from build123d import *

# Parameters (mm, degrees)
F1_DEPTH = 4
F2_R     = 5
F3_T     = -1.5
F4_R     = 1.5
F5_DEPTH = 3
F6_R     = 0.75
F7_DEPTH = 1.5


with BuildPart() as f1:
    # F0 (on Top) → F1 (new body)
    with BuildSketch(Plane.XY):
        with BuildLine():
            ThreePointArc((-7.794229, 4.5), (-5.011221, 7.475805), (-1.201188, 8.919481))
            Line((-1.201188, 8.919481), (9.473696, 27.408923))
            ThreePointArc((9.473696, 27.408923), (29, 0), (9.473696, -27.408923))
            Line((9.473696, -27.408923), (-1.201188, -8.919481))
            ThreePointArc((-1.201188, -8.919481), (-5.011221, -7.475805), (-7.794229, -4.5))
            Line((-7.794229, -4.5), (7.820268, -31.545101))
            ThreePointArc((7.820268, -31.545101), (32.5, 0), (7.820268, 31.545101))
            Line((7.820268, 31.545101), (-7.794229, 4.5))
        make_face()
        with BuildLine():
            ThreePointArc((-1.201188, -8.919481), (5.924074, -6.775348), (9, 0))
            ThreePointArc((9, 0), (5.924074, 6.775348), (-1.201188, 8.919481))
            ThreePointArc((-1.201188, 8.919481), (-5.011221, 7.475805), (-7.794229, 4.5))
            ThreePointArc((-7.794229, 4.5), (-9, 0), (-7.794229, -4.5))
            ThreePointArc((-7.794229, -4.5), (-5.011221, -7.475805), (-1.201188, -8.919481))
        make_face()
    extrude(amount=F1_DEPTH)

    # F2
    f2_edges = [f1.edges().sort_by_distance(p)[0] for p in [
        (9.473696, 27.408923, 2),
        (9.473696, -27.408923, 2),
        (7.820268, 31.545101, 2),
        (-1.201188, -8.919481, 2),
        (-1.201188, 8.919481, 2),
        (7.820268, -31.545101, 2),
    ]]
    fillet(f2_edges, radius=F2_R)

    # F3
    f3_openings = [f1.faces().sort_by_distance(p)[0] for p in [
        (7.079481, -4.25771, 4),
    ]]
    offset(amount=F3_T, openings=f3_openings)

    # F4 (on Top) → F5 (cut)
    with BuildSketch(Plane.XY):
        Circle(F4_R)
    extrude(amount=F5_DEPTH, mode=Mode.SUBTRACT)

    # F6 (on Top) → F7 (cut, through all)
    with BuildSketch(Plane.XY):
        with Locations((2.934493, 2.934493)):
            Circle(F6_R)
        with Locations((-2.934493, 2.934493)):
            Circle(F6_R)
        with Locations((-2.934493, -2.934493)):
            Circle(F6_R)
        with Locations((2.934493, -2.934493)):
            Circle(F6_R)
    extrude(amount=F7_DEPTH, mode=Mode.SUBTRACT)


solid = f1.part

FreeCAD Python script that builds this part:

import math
import FreeCAD as App
import Part
import Sketcher
from FreeCAD import Vector
Q = App.Units.Quantity


def edges_at(feature, points):
    """Names of the edges that pass closest to the given points."""
    edges = feature.Shape.Edges
    near = lambda p: min(range(len(edges)), key=lambda i: edges[i].distToShape(Part.Vertex(*p))[0])
    return sorted({f"Edge{near(p) + 1}" for p in points})


def faces_at(feature, points):
    """Names of the faces that lie closest to the given points."""
    faces = feature.Shape.Faces
    near = lambda p: min(range(len(faces)), key=lambda i: faces[i].distToShape(Part.Vertex(*p))[0])
    return sorted({f"Face{near(p) + 1}" for p in points})

doc = App.newDocument("Part")
params = doc.addObject("Spreadsheet::Sheet", "Params")
for row, (alias, value) in enumerate([
    ("sketch1_radius", "28.999999 mm"),
    ("sketch1_radius2", "9 mm"),
    ("sketch1_radius3", "32.5 mm"),
    ("pad1_length", "4 mm"),
    ("fillet_radius", "5 mm"),
    ("thickness_wall", "1.5 mm"),
    ("sketch2_diameter", "3 mm"),
    ("pocket1_length", "3 mm"),
    ("sketch3_diameter", "1.5 mm"),
], start=1):
    params.set(f"A{row}", alias)
    params.set(f"B{row}", "=" + value)
    params.setAlias(f"B{row}", alias)

body = doc.addObject("PartDesign::Body", "Body")

# Sketch on XY plane
sketch1 = doc.addObject("Sketcher::SketchObject", "Sketch")
body.addObject(sketch1)
sketch1.AttachmentSupport = (doc.XY_Plane, [""])
sketch1.MapMode = "FlatFace"
sketch1.addGeometry([
    Part.LineSegment(Vector(-8, -4, 0), Vector(8, -32, 0)),  # 0
    Part.ArcOfCircle(Part.Circle(Vector(0, 0, 0), Vector(0, 0, 1), 32), math.radians(-76), math.radians(76)),  # 1
    Part.LineSegment(Vector(8, 32, 0), Vector(-8, 4, 0)),  # 2
    Part.ArcOfCircle(Part.Circle(Vector(0, 0, 0), Vector(0, 0, 1), 9), math.radians(150), math.radians(210)),  # 3
    Part.LineSegment(Vector(-1, 9, 0), Vector(9, 27, 0)),  # 4
    Part.ArcOfCircle(Part.Circle(Vector(0, 0, 0), Vector(0, 0, 1), 29), math.radians(-71), math.radians(71)),  # 5
    Part.LineSegment(Vector(9, -27, 0), Vector(-1, -9, 0)),  # 6
    Part.ArcOfCircle(Part.Circle(Vector(0, 0, 0), Vector(0, 0, 1), 9), math.radians(-98), math.radians(0)),  # 7
    Part.ArcOfCircle(Part.Circle(Vector(0, 0, 0), Vector(0, 0, 1), 9), math.radians(0), math.radians(98)),  # 8
], False)
sketch1.addConstraint([
    Sketcher.Constraint("Coincident", 0, 2, 1, 1),
    Sketcher.Constraint("Coincident", 1, 2, 2, 1),
    Sketcher.Constraint("Tangent", 2, 2, 3, 1),
    Sketcher.Constraint("Tangent", 3, 2, 0, 1),
    Sketcher.Constraint("Coincident", 4, 2, 5, 2),
    Sketcher.Constraint("Coincident", 5, 1, 6, 1),
    Sketcher.Constraint("Coincident", 6, 2, 7, 1),
    Sketcher.Constraint("Tangent", 7, 2, 8, 1),
    Sketcher.Constraint("Coincident", 8, 2, 4, 1),
    Sketcher.Constraint("Coincident", 1, 3, -1, 1),
    Sketcher.Constraint("Coincident", 3, 3, -1, 1),
    Sketcher.Constraint("Coincident", 5, 3, -1, 1),
    Sketcher.Constraint("Coincident", 7, 3, -1, 1),
    Sketcher.Constraint("Equal", 7, 8),
    Sketcher.Constraint("PointOnObject", 7, 2, -1),
    Sketcher.Constraint("Parallel", 2, 4),
    Sketcher.Constraint("Parallel", 0, 6),
    Sketcher.Constraint("Vertical", 0, 2, 1, 2),
    Sketcher.Constraint("Vertical", 4, 2, 5, 1),
    Sketcher.Constraint("Radius", 5, Q("28.999999 mm")),
    Sketcher.Constraint("Radius", 7, Q("9 mm")),
    Sketcher.Constraint("Radius", 1, Q("32.5 mm")),
    Sketcher.Constraint("Angle", 0, Q("-59.999999 deg")),
    Sketcher.Constraint("DistanceY", 3, 2, 2, 2, Q("9 mm")),
    Sketcher.Constraint("Distance", 4, Q("21.349768 mm")),
])
sketch1.setExpression("Constraints[19]", "Params.sketch1_radius")
sketch1.setExpression("Constraints[20]", "Params.sketch1_radius2")
sketch1.setExpression("Constraints[21]", "Params.sketch1_radius3")
pad1 = doc.addObject("PartDesign::Pad", "Pad")
body.addObject(pad1)
pad1.Profile = sketch1
pad1.setExpression("Length", "Params.pad1_length")
doc.recompute()

fillet = doc.addObject("PartDesign::Fillet", "Fillet")
body.addObject(fillet)
fillet.Base = (pad1, edges_at(pad1, [
    (9.474, 27.409, 2),
    (9.474, -27.409, 2),
    (7.82, 31.545, 2),
    (-1.201, -8.919, 2),
    (-1.201, 8.919, 2),
    (7.82, -31.545, 2),
]))
fillet.setExpression("Radius", "Params.fillet_radius")
doc.recompute()

thickness = doc.addObject("PartDesign::Thickness", "Thickness")
body.addObject(thickness)
thickness.Base = (fillet, faces_at(fillet, [(-4.85, 0, 4)]))
thickness.setExpression("Value", "Params.thickness_wall")
thickness.Reversed = True
thickness.Join = "Arc"

# Sketch on XY plane
sketch2 = doc.addObject("Sketcher::SketchObject", "Sketch001")
body.addObject(sketch2)
sketch2.AttachmentSupport = (doc.XY_Plane, [""])
sketch2.MapMode = "FlatFace"
sketch2.addGeometry(Part.Circle(Vector(0, 0, 0), Vector(0, 0, 1), 1.5), False)
sketch2.addConstraint([
    Sketcher.Constraint("Coincident", 0, 3, -1, 1),
    Sketcher.Constraint("Diameter", 0, Q("3 mm")),
])
sketch2.setExpression("Constraints[1]", "Params.sketch2_diameter")
pocket1 = doc.addObject("PartDesign::Pocket", "Pocket")
body.addObject(pocket1)
pocket1.Profile = sketch2
pocket1.setExpression("Length", "Params.pocket1_length")
pocket1.Reversed = True

# Sketch on XY plane
sketch3 = doc.addObject("Sketcher::SketchObject", "Sketch002")
body.addObject(sketch3)
sketch3.AttachmentSupport = (doc.XY_Plane, [""])
sketch3.MapMode = "FlatFace"
sketch3.addGeometry([
    Part.Circle(Vector(2.9, 2.9, 0), Vector(0, 0, 1), 0.8),
    Part.Circle(Vector(-2.9, 2.9, 0), Vector(0, 0, 1), 0.8),
    Part.Circle(Vector(-2.9, -2.9, 0), Vector(0, 0, 1), 0.8),
    Part.Circle(Vector(2.9, -2.9, 0), Vector(0, 0, 1), 0.8),
], False)
sketch3.addConstraint([
    Sketcher.Constraint("Equal", 0, 1),
    Sketcher.Constraint("Equal", 1, 2),
    Sketcher.Constraint("Equal", 2, 3),
    Sketcher.Constraint("Symmetric", 0, 3, 2, 3, -1, 1),
    Sketcher.Constraint("Symmetric", 1, 3, 3, 3, -1, 1),
    Sketcher.Constraint("Symmetric", 0, 3, 1, 3, -2),
    Sketcher.Constraint("Diameter", 0, Q("1.5 mm")),
    Sketcher.Constraint("DistanceX", -1, 1, 0, 3, Q("2.934493 mm")),
    Sketcher.Constraint("DistanceY", -1, 1, 0, 3, Q("2.934493 mm")),
])
sketch3.setExpression("Constraints[6]", "Params.sketch3_diameter")
pocket2 = doc.addObject("PartDesign::Pocket", "Pocket001")
body.addObject(pocket2)
pocket2.Profile = sketch3
pocket2.Type = "ThroughAll"
pocket2.Reversed = True

doc.recompute()
